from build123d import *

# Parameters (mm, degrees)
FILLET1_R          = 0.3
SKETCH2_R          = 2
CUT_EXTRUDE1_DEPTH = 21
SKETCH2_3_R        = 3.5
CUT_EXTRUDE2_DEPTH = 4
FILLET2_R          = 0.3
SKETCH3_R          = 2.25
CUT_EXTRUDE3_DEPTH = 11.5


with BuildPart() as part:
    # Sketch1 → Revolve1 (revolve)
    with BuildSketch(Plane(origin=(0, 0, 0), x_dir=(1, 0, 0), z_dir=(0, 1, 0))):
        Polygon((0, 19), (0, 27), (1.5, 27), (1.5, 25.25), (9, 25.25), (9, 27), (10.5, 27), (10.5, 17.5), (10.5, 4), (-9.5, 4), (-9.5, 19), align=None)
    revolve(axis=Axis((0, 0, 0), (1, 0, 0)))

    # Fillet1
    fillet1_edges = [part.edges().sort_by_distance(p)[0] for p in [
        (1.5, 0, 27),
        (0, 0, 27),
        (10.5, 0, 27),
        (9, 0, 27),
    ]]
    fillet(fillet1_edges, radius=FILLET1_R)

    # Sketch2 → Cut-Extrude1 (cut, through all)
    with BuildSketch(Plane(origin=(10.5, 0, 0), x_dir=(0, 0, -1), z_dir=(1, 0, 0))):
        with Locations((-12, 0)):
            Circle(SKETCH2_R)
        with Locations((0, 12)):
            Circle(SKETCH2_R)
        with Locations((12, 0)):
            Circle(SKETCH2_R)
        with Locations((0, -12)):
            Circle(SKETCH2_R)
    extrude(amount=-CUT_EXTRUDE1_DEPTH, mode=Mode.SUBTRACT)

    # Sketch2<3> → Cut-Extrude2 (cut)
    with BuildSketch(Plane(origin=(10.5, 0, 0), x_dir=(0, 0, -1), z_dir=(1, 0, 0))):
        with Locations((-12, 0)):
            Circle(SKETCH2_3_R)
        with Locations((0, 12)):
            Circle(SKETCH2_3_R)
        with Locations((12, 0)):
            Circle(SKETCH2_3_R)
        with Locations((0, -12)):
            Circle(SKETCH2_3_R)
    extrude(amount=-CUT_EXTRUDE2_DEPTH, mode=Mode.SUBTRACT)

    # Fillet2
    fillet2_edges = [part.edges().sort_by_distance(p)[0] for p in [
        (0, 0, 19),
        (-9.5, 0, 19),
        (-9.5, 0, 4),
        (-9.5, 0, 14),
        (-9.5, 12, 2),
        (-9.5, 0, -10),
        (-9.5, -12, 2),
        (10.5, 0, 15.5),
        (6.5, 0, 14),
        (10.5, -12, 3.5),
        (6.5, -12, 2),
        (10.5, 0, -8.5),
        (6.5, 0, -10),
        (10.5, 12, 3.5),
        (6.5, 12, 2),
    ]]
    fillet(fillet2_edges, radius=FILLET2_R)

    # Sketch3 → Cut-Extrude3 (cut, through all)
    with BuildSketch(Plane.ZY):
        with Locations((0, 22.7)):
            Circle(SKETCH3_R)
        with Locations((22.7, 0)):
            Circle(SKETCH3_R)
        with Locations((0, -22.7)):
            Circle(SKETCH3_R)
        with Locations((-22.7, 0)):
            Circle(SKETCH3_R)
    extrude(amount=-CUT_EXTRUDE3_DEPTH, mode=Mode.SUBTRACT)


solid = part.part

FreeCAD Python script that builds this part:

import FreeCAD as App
import Part
import Sketcher
from FreeCAD import Vector
Q = App.Units.Quantity


def edges_at(feature, points):
    """Names of the edges that pass closest to the given points."""
    edges = feature.Shape.Edges
    near = lambda p: min(range(len(edges)), key=lambda i: edges[i].distToShape(Part.Vertex(*p))[0])
    return sorted({f"Edge{near(p) + 1}" for p in points})


def add_polygon(sketch, points):
    """Adds a closed chain of lines whose ends are joined by coincident constraints."""
    first, n = sketch.GeometryCount, len(points)
    for a, b in zip(points, points[1:] + points[:1]):
        sketch.addGeometry(Part.LineSegment(App.Vector(*a, 0), App.Vector(*b, 0)), False)
    for i in range(n):
        sketch.addConstraint(Sketcher.Constraint("Coincident", first + i, 2, first + (i + 1) % n, 1))

doc = App.newDocument("Part")
body = doc.addObject("PartDesign::Body", "Body")

# Sketch on XZ plane
sketch1 = body.newObject("Sketcher::SketchObject", "Sketch")
sketch1.AttachmentSupport = (doc.getObject("XZ_Plane"), [""])
sketch1.MapMode = "FlatFace"
add_polygon(sketch1, [(0, -27), (0, -19), (-9.5, -19), (-9.5, -4), (10.5, -4), (10.5, -27), (9, -27), (9, -25.2), (1.5, -25.2), (1.5, -27)])  # lines 0-9
sketch1.addConstraint([
    Sketcher.Constraint("Vertical", 0),
    Sketcher.Constraint("Horizontal", 1),
    Sketcher.Constraint("Vertical", 2),
    Sketcher.Constraint("Horizontal", 3),
    Sketcher.Constraint("Vertical", 4),
    Sketcher.Constraint("Horizontal", 5),
    Sketcher.Constraint("Vertical", 6),
    Sketcher.Constraint("Horizontal", 7),
    Sketcher.Constraint("Vertical", 8),
    Sketcher.Constraint("Horizontal", 9),
    Sketcher.Constraint("PointOnObject", 0, 2, -2),
    Sketcher.Constraint("Horizontal", 5, 2, 8, 2),
    Sketcher.Constraint("Equal", 5, 9),
    Sketcher.Constraint("DistanceX", 3, 1, 3, 2, Q("20 mm")),
    Sketcher.Constraint("DistanceY", 0, 1, 0, 2, Q("8 mm")),
    Sketcher.Constraint("DistanceY", 2, 1, 2, 2, Q("15 mm")),
    Sketcher.Constraint("DistanceX", 1, 2, 1, 1, Q("9.5 mm")),
    Sketcher.Constraint("DistanceX", 5, 2, 5, 1, Q("1.5 mm")),
    Sketcher.Constraint("DistanceY", 0, 2, -1, 1, Q("19 mm")),
    Sketcher.Constraint("DistanceY", 6, 1, 6, 2, Q("1.75 mm")),
])
revolution = body.newObject("PartDesign::Revolution", "Revolution")
revolution.Profile = sketch1
revolution.ReferenceAxis = (sketch1, ["H_Axis"])
revolution.Angle = 360
doc.recompute()

fillet = body.newObject("PartDesign::Fillet", "Fillet")
fillet.Base = (revolution, edges_at(revolution, [
    (1.5, 0, 27),
    (0, 0, 27),
    (10.5, 0, 27),
    (9, 0, 27),
]))
fillet.Radius = 0.3

# Sketch on YZ plane
sketch2 = body.newObject("Sketcher::SketchObject", "Sketch001")
sketch2.AttachmentSupport = (doc.getObject("YZ_Plane"), [""])
sketch2.MapMode = "FlatFace"
sketch2.AttachmentOffset = App.Placement(Vector(0, 0, 10.5), App.Rotation())
sketch2.addGeometry([
    Part.Circle(Vector(0, 12, 0), Vector(0, 0, 1), 2),
    Part.Circle(Vector(12, 0, 0), Vector(0, 0, 1), 2),
    Part.Circle(Vector(0, -12, 0), Vector(0, 0, 1), 2),
    Part.Circle(Vector(-12, 0, 0), Vector(0, 0, 1), 2),
], False)
sketch2.addConstraint([
    Sketcher.Constraint("Equal", 0, 1),
    Sketcher.Constraint("Equal", 1, 2),
    Sketcher.Constraint("Equal", 2, 3),
    Sketcher.Constraint("Symmetric", 0, 3, 2, 3, -1, 1),
    Sketcher.Constraint("Symmetric", 1, 3, 3, 3, -1, 1),
    Sketcher.Constraint("PointOnObject", 0, 3, -2),
    Sketcher.Constraint("PointOnObject", 1, 3, -1),
    Sketcher.Constraint("Diameter", 0, Q("4 mm")),
    Sketcher.Constraint("DistanceY", -1, 1, 0, 3, Q("12 mm")),
    Sketcher.Constraint("DistanceX", -1, 1, 1, 3, Q("12 mm")),
])
pocket1 = body.newObject("PartDesign::Pocket", "Pocket")
pocket1.Profile = sketch2
pocket1.Type = "ThroughAll"

# Sketch on YZ plane
sketch3 = body.newObject("Sketcher::SketchObject", "Sketch002")
sketch3.AttachmentSupport = (doc.getObject("YZ_Plane"), [""])
sketch3.MapMode = "FlatFace"
sketch3.AttachmentOffset = App.Placement(Vector(0, 0, 10.5), App.Rotation())
sketch3.addGeometry([
    Part.Circle(Vector(0, 12, 0), Vector(0, 0, 1), 3.5),
    Part.Circle(Vector(12, 0, 0), Vector(0, 0, 1), 3.5),
    Part.Circle(Vector(0, -12, 0), Vector(0, 0, 1), 3.5),
    Part.Circle(Vector(-12, 0, 0), Vector(0, 0, 1), 3.5),
], False)
sketch3.addConstraint([
    Sketcher.Constraint("Equal", 0, 1),
    Sketcher.Constraint("Equal", 1, 2),
    Sketcher.Constraint("Equal", 2, 3),
    Sketcher.Constraint("Symmetric", 0, 3, 2, 3, -1, 1),
    Sketcher.Constraint("Symmetric", 1, 3, 3, 3, -1, 1),
    Sketcher.Constraint("PointOnObject", 0, 3, -2),
    Sketcher.Constraint("PointOnObject", 1, 3, -1),
    Sketcher.Constraint("Diameter", 0, Q("7 mm")),
    Sketcher.Constraint("DistanceY", -1, 1, 0, 3, Q("12 mm")),
    Sketcher.Constraint("DistanceX", -1, 1, 1, 3, Q("12 mm")),
])
pocket2 = body.newObject("PartDesign::Pocket", "Pocket001")
pocket2.Profile = sketch3
pocket2.Length = 4
doc.recompute()

fillet2 = body.newObject("PartDesign::Fillet", "Fillet001")
fillet2.Base = (pocket2, edges_at(pocket2, [
    (0, 0, 19),
    (-9.5, 0, 19),
    (-9.5, 0, 4),
    (-9.5, 0, 14),
    (-9.5, 12, 2),
    (-9.5, 0, -10),
    (-9.5, -12, 2),
    (10.5, 0, 15.5),
    (6.5, 0, 14),
    (10.5, -12, 3.5),
    (6.5, -12, 2),
    (10.5, 0, -8.5),
    (6.5, 0, -10),
    (10.5, 12, 3.5),
    (6.5, 12, 2),
]))
fillet2.Radius = 0.3

# Sketch on YZ plane
sketch4 = body.newObject("Sketcher::SketchObject", "Sketch003")
sketch4.AttachmentSupport = (doc.getObject("YZ_Plane"), [""])
sketch4.MapMode = "FlatFace"
sketch4.addGeometry([
    Part.Circle(Vector(22.7, 0, 0), Vector(0, 0, 1), 2.2),
    Part.Circle(Vector(0, 22.7, 0), Vector(0, 0, 1), 2.2),
    Part.Circle(Vector(-22.7, 0, 0), Vector(0, 0, 1), 2.2),
    Part.Circle(Vector(0, -22.7, 0), Vector(0, 0, 1), 2.2),
], False)
sketch4.addConstraint([
    Sketcher.Constraint("Equal", 0, 1),
    Sketcher.Constraint("Equal", 1, 2),
    Sketcher.Constraint("Equal", 2, 3),
    Sketcher.Constraint("Symmetric", 0, 3, 2, 3, -1, 1),
    Sketcher.Constraint("Symmetric", 1, 3, 3, 3, -1, 1),
    Sketcher.Constraint("PointOnObject", 0, 3, -1),
    Sketcher.Constraint("PointOnObject", 1, 3, -2),
    Sketcher.Constraint("Diameter", 0, Q("4.5 mm")),
    Sketcher.Constraint("DistanceX", -1, 1, 0, 3, Q("22.7 mm")),
    Sketcher.Constraint("DistanceY", -1, 1, 1, 3, Q("22.7 mm")),
])
pocket3 = body.newObject("PartDesign::Pocket", "Pocket002")
pocket3.Profile = sketch4
pocket3.Type = "ThroughAll"
pocket3.Reversed = True

doc.recompute()
